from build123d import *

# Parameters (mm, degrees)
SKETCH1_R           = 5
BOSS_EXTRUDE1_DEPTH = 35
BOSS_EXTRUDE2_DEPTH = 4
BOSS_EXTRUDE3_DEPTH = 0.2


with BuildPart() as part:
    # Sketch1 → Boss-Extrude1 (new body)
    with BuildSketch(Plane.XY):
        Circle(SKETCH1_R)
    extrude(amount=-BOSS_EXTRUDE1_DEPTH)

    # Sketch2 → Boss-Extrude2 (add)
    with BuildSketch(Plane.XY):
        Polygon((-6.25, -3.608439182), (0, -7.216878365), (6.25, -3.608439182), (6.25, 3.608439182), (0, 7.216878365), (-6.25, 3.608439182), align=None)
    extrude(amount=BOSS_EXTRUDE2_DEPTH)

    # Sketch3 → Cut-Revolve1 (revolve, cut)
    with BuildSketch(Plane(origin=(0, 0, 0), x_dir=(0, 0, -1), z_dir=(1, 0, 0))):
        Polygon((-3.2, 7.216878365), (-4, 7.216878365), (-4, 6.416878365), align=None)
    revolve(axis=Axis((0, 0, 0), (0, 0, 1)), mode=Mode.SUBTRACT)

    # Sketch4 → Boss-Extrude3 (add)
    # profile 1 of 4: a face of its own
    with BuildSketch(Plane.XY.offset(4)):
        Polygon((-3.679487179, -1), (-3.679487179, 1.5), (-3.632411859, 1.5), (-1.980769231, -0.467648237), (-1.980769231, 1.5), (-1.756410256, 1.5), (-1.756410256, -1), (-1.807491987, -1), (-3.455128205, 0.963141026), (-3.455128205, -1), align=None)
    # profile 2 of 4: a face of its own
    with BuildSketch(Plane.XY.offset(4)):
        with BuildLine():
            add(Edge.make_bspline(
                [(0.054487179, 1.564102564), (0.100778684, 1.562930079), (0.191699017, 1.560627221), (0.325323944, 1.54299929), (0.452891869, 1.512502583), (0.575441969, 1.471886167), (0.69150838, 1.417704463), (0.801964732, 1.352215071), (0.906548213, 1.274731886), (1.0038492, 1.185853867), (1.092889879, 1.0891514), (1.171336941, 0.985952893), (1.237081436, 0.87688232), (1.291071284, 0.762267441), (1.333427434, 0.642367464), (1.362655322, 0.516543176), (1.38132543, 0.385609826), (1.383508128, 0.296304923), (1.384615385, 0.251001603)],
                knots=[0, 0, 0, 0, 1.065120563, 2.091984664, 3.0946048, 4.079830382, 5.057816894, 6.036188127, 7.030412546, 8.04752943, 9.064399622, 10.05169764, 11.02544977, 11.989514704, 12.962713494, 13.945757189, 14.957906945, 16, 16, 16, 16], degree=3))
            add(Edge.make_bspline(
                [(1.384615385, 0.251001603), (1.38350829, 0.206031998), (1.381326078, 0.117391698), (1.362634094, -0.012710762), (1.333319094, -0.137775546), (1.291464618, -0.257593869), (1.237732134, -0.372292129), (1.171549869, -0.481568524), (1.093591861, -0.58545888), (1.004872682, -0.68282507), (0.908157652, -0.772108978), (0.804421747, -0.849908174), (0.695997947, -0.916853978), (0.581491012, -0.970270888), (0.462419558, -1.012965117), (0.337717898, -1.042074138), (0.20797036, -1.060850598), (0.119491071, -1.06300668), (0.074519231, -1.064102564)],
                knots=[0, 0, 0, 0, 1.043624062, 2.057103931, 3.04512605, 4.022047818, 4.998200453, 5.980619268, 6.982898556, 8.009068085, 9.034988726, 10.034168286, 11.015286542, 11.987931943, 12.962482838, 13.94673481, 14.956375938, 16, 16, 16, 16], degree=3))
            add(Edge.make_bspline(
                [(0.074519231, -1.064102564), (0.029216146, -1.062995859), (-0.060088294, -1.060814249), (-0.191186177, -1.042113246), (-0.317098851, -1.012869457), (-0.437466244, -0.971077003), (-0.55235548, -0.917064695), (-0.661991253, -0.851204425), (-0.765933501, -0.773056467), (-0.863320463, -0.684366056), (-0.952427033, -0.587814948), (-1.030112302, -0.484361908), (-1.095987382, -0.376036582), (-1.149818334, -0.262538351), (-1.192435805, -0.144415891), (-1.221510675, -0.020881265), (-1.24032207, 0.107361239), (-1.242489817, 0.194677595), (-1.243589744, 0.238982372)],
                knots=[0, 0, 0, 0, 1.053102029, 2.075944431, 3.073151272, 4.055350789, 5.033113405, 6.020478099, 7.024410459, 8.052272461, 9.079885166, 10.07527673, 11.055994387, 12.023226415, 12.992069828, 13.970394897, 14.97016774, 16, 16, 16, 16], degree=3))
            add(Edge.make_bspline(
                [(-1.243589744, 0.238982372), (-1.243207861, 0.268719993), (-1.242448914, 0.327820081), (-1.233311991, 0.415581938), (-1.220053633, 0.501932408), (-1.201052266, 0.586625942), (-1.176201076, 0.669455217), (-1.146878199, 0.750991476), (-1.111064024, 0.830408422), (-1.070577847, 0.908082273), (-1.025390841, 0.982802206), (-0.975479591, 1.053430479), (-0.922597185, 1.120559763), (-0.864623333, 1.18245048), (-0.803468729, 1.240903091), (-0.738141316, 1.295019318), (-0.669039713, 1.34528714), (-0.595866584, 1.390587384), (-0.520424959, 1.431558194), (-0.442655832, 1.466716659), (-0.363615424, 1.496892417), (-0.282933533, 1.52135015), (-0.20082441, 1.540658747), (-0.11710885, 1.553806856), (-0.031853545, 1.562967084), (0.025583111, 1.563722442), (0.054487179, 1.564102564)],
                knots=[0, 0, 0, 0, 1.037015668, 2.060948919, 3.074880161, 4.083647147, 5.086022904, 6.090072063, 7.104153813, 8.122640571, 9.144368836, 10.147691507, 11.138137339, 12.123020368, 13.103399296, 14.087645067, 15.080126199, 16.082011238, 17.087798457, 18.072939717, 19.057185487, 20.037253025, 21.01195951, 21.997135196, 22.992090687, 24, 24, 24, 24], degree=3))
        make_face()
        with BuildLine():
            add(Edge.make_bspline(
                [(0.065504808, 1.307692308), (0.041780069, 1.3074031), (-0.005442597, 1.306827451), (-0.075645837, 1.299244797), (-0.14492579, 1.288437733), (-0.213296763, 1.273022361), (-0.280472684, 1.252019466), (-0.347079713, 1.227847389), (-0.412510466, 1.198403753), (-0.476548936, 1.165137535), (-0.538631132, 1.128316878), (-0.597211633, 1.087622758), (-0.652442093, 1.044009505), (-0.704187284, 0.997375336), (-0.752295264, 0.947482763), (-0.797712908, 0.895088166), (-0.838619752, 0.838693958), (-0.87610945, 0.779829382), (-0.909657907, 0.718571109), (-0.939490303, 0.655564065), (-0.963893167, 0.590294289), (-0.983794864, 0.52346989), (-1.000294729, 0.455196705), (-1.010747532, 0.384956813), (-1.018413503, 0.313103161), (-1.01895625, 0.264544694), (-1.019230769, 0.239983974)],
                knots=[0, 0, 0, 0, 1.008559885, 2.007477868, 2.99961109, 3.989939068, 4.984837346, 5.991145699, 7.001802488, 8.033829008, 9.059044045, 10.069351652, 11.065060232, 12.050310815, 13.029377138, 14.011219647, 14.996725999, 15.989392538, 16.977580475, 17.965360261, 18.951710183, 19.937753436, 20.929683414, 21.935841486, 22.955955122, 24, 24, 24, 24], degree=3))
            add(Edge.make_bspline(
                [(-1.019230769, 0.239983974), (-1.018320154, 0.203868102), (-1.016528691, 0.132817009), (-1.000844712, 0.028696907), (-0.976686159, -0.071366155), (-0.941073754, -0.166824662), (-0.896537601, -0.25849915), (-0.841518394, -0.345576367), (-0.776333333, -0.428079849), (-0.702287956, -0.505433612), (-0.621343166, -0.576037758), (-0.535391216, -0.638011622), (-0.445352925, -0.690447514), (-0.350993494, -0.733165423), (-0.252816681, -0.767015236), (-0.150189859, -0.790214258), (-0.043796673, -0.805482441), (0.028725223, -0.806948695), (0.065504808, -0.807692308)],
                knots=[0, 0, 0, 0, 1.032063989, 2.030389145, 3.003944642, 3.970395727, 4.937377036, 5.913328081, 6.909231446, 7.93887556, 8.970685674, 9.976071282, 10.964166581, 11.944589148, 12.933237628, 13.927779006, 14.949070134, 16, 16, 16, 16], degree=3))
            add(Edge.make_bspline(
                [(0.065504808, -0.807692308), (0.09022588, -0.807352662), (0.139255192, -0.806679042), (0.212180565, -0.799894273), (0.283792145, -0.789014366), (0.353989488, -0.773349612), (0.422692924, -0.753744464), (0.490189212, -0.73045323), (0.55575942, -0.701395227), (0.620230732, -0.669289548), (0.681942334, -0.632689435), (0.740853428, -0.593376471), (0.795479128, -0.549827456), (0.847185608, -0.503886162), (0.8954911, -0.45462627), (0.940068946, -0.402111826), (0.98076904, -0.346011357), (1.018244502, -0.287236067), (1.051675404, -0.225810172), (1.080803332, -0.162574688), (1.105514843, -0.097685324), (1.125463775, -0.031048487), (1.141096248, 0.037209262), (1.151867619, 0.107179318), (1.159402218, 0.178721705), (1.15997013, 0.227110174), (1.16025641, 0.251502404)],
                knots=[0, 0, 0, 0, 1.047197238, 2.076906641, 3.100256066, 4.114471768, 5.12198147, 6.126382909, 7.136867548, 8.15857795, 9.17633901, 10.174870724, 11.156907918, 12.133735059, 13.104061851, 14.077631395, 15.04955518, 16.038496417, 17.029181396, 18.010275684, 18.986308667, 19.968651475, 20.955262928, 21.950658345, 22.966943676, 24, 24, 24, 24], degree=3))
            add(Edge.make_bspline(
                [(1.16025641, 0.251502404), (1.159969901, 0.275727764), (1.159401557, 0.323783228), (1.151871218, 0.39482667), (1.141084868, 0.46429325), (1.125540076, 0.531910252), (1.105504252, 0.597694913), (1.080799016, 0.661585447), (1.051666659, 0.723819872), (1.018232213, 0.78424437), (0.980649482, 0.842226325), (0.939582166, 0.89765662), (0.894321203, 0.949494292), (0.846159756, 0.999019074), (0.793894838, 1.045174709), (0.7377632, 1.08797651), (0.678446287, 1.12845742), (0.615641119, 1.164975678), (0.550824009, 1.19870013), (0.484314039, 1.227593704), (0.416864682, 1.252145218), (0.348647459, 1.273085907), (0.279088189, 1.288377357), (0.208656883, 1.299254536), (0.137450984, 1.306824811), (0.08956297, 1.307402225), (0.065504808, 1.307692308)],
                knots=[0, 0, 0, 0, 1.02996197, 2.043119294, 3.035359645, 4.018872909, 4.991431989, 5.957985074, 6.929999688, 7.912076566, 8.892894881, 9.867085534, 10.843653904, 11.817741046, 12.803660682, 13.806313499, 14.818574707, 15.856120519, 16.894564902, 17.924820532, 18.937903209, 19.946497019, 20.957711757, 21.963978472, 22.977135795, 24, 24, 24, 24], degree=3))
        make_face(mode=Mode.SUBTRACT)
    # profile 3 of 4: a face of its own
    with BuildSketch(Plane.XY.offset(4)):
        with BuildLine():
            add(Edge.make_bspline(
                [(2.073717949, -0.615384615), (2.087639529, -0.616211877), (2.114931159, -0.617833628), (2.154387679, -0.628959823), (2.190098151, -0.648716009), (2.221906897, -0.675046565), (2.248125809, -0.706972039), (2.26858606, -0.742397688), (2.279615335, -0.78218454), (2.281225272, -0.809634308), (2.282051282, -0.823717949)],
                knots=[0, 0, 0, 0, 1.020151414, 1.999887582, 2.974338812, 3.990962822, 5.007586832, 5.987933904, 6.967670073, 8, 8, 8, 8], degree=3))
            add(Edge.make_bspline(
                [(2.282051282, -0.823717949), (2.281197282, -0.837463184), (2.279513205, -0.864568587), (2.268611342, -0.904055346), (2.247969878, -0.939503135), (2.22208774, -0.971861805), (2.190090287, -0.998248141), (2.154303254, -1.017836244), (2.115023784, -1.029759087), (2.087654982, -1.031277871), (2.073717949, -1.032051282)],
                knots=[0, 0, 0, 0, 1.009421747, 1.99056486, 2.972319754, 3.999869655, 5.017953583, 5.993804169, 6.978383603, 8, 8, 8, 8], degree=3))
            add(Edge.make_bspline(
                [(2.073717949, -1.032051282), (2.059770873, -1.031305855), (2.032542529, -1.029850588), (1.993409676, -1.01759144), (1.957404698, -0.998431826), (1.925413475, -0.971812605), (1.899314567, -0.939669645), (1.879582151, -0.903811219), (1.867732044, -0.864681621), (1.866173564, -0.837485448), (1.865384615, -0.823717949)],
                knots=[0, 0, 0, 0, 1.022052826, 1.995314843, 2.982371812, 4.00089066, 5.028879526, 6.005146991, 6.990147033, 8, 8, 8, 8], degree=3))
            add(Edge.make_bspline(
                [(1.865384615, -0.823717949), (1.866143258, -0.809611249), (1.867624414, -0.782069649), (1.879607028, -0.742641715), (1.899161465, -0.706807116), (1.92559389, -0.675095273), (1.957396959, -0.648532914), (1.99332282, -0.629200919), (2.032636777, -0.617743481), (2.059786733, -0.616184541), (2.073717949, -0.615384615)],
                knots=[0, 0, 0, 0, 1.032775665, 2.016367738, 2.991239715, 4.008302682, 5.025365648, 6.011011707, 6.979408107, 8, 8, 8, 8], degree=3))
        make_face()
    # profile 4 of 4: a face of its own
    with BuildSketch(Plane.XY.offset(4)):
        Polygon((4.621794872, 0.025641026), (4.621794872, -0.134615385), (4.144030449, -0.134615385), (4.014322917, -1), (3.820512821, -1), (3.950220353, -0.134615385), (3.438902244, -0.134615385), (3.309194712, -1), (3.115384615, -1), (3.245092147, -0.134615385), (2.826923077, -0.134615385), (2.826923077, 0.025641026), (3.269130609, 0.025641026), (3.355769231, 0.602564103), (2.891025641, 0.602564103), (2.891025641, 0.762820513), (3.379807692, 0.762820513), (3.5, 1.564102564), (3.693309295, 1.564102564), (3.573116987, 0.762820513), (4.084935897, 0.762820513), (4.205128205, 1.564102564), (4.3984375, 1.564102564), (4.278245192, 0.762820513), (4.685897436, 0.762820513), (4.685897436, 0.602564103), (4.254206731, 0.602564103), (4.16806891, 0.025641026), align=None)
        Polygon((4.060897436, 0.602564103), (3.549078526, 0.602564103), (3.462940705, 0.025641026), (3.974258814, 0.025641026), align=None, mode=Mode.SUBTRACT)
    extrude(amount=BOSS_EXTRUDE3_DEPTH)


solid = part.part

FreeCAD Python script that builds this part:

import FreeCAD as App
import Part
import Sketcher
from FreeCAD import Vector
Q = App.Units.Quantity


def add_polygon(sketch, points):
    """Adds a closed chain of lines whose ends are joined by coincident constraints."""
    first, n = sketch.GeometryCount, len(points)
    for a, b in zip(points, points[1:] + points[:1]):
        sketch.addGeometry(Part.LineSegment(App.Vector(*a, 0), App.Vector(*b, 0)), False)
    for i in range(n):
        sketch.addConstraint(Sketcher.Constraint("Coincident", first + i, 2, first + (i + 1) % n, 1))

doc = App.newDocument("Part")
params = doc.addObject("Spreadsheet::Sheet", "Params")
for row, (alias, value) in enumerate([
    ("sketch1_diameter", "10 mm"),
    ("pad1_length", "35 mm"),
    ("pad2_length", "4 mm"),
    ("sketch3_width", "0.8 mm"),
    ("groove_angle", "360 deg"),
    ("sketch4_height", "2.5 mm"),
    ("pad3_length", "0.2 mm"),
], start=1):
    params.set(f"A{row}", alias)
    params.set(f"B{row}", "=" + value)
    params.setAlias(f"B{row}", alias)

body = doc.addObject("PartDesign::Body", "Body")

# Sketch on XY plane
sketch1 = body.newObject("Sketcher::SketchObject", "Sketch")
sketch1.AttachmentSupport = (doc.getObject("XY_Plane"), [""])
sketch1.MapMode = "FlatFace"
sketch1.addGeometry(Part.Circle(Vector(0, 0, 0), Vector(0, 0, 1), 5), False)
sketch1.addConstraint(Sketcher.Constraint("Coincident", 0, 3, -1, 1))
sketch1.addConstraint(Sketcher.Constraint("Diameter", 0, 10.0))
sketch1.setExpression("Constraints[1]", "Params.sketch1_diameter")
pad1 = body.newObject("PartDesign::Pad", "Pad")
pad1.Profile = sketch1
pad1.setExpression("Length", "Params.pad1_length")
pad1.Reversed = True

# Sketch on XY plane
sketch2 = body.newObject("Sketcher::SketchObject", "Sketch001")
sketch2.AttachmentSupport = (doc.getObject("XY_Plane"), [""])
sketch2.MapMode = "FlatFace"
add_polygon(sketch2, [(-6.25, -3.608439), (0, -7.216878), (6.25, -3.608439), (6.25, 3.608439), (0, 7.216878), (-6.25, 3.608439)])  # lines 0-5
sketch2.addConstraint(Sketcher.Constraint("Vertical", 2))
sketch2.addConstraint(Sketcher.Constraint("Vertical", 5))
sketch2.addConstraint(Sketcher.Constraint("Symmetric", 0, 2, 3, 2, -1, 1))
sketch2.addConstraint(Sketcher.Constraint("Symmetric", 1, 2, 4, 2, -1, 1))
sketch2.addConstraint(Sketcher.Constraint("PointOnObject", 0, 2, -2))
sketch2.addConstraint(Sketcher.Constraint("Parallel", 0, 3))
sketch2.addConstraint(Sketcher.Constraint("Horizontal", 2, 2, 4, 2))
sketch2.addConstraint(Sketcher.Constraint("Angle", 0, Q("-30 deg")))
sketch2.addConstraint(Sketcher.Constraint("DistanceX", 4, 2, 2, 2, 12.5))
sketch2.addConstraint(Sketcher.Constraint("DistanceY", 2, 1, 2, 2, 7.216878))
pad2 = body.newObject("PartDesign::Pad", "Pad001")
pad2.Profile = sketch2
pad2.setExpression("Length", "Params.pad2_length")

# Sketch on YZ plane
sketch3 = body.newObject("Sketcher::SketchObject", "Sketch002")
sketch3.AttachmentSupport = (doc.getObject("YZ_Plane"), [""])
sketch3.MapMode = "FlatFace"
add_polygon(sketch3, [(7.216878, 3.2), (7.216878, 4), (6.416878, 4)])  # lines 0-2
sketch3.addConstraint(Sketcher.Constraint("Vertical", 0))
sketch3.addConstraint(Sketcher.Constraint("Horizontal", 1))
sketch3.addConstraint(Sketcher.Constraint("Equal", 1, 0))
sketch3.addConstraint(Sketcher.Constraint("DistanceX", 1, 2, 1, 1, 0.8))
sketch3.addConstraint(Sketcher.Constraint("DistanceY", -1, 1, 0, 2, 4.0))
sketch3.addConstraint(Sketcher.Constraint("DistanceX", -1, 1, 0, 2, 7.216878))
sketch3.setExpression("Constraints[6]", "Params.sketch3_width")
groove = body.newObject("PartDesign::Groove", "Groove")
groove.Profile = sketch3
groove.ReferenceAxis = (sketch3, ["V_Axis"])
groove.setExpression("Angle", "Params.groove_angle")

# Sketch on XY plane
sketch4 = body.newObject("Sketcher::SketchObject", "Sketch003")
sketch4.AttachmentSupport = (doc.getObject("XY_Plane"), [""])
sketch4.MapMode = "FlatFace"
sketch4.AttachmentOffset = App.Placement(Vector(0, 0, 4), App.Rotation())
add_polygon(sketch4, [(-3.679487, 1.5), (-3.679487, -1), (-3.455128, -1), (-3.455128, 0.963141), (-1.807492, -1), (-1.75641, -1), (-1.75641, 1.5), (-1.980769, 1.5), (-1.980769, -0.467648), (-3.632412, 1.5)])  # lines 0-9
sketch4.addGeometry(Part.BSplineCurve([Vector(0.054487, 1.564103, 0), Vector(0.100779, 1.56293, 0), Vector(0.191699, 1.560627, 0), Vector(0.325324, 1.542999, 0), Vector(0.452892, 1.512503, 0), Vector(0.575442, 1.471886, 0), Vector(0.691508, 1.417704, 0), Vector(0.801965, 1.352215, 0), Vector(0.906548, 1.274732, 0), Vector(1.003849, 1.185854, 0), Vector(1.09289, 1.089151, 0), Vector(1.171337, 0.985953, 0), Vector(1.237081, 0.876882, 0), Vector(1.291071, 0.762267, 0), Vector(1.333427, 0.642367, 0), Vector(1.362655, 0.516543, 0), Vector(1.381325, 0.38561, 0), Vector(1.383508, 0.296305, 0), Vector(1.384615, 0.251002, 0)], [4, 1, 1, 1, 1, 1, 1, 1, 1, 1, 1, 1, 1, 1, 1, 1, 4], [0, 1.065120563, 2.091984664, 3.0946048, 4.079830382, 5.057816894, 6.036188127, 7.030412546, 8.04752943, 9.064399622, 10.05169764, 11.02544977, 11.989514704, 12.962713494, 13.945757189, 14.957906945, 16], False, 3, [1, 1, 1, 1, 1, 1, 1, 1, 1, 1, 1, 1, 1, 1, 1, 1, 1, 1, 1], False), False)  # 10
sketch4.addGeometry(Part.BSplineCurve([Vector(-1.24359, 0.238982, 0), Vector(-1.243208, 0.26872, 0), Vector(-1.242449, 0.32782, 0), Vector(-1.233312, 0.415582, 0), Vector(-1.220054, 0.501932, 0), Vector(-1.201052, 0.586626, 0), Vector(-1.176201, 0.669455, 0), Vector(-1.146878, 0.750991, 0), Vector(-1.111064, 0.830408, 0), Vector(-1.070578, 0.908082, 0), Vector(-1.025391, 0.982802, 0), Vector(-0.97548, 1.05343, 0), Vector(-0.922597, 1.12056, 0), Vector(-0.864623, 1.18245, 0), Vector(-0.803469, 1.240903, 0), Vector(-0.738141, 1.295019, 0), Vector(-0.66904, 1.345287, 0), Vector(-0.595867, 1.390587, 0), Vector(-0.520425, 1.431558, 0), Vector(-0.442656, 1.466717, 0), Vector(-0.363615, 1.496892, 0), Vector(-0.282934, 1.52135, 0), Vector(-0.200824, 1.540659, 0), Vector(-0.117109, 1.553807, 0), Vector(-0.031854, 1.562967, 0), Vector(0.025583, 1.563722, 0), Vector(0.054487, 1.564103, 0)], [4, 1, 1, 1, 1, 1, 1, 1, 1, 1, 1, 1, 1, 1, 1, 1, 1, 1, 1, 1, 1, 1, 1, 1, 4], [0, 1.037015668, 2.060948919, 3.074880161, 4.083647147, 5.086022904, 6.090072063, 7.104153813, 8.122640571, 9.144368836, 10.147691507, 11.138137339, 12.123020368, 13.103399296, 14.087645067, 15.080126199, 16.082011238, 17.087798457, 18.072939717, 19.057185487, 20.037253025, 21.01195951, 21.997135196, 22.992090687, 24], False, 3, [1, 1, 1, 1, 1, 1, 1, 1, 1, 1, 1, 1, 1, 1, 1, 1, 1, 1, 1, 1, 1, 1, 1, 1, 1, 1, 1], False), False)  # 11
sketch4.addGeometry(Part.BSplineCurve([Vector(0.074519, -1.064103, 0), Vector(0.029216, -1.062996, 0), Vector(-0.060088, -1.060814, 0), Vector(-0.191186, -1.042113, 0), Vector(-0.317099, -1.012869, 0), Vector(-0.437466, -0.971077, 0), Vector(-0.552355, -0.917065, 0), Vector(-0.661991, -0.851204, 0), Vector(-0.765934, -0.773056, 0), Vector(-0.86332, -0.684366, 0), Vector(-0.952427, -0.587815, 0), Vector(-1.030112, -0.484362, 0), Vector(-1.095987, -0.376037, 0), Vector(-1.149818, -0.262538, 0), Vector(-1.192436, -0.144416, 0), Vector(-1.221511, -0.020881, 0), Vector(-1.240322, 0.107361, 0), Vector(-1.24249, 0.194678, 0), Vector(-1.24359, 0.238982, 0)], [4, 1, 1, 1, 1, 1, 1, 1, 1, 1, 1, 1, 1, 1, 1, 1, 4], [0, 1.053102029, 2.075944431, 3.073151272, 4.055350789, 5.033113405, 6.020478099, 7.024410459, 8.052272461, 9.079885166, 10.07527673, 11.055994387, 12.023226415, 12.992069828, 13.970394897, 14.97016774, 16], False, 3, [1, 1, 1, 1, 1, 1, 1, 1, 1, 1, 1, 1, 1, 1, 1, 1, 1, 1, 1], False), False)  # 12
sketch4.addGeometry(Part.BSplineCurve([Vector(1.384615, 0.251002, 0), Vector(1.383508, 0.206032, 0), Vector(1.381326, 0.117392, 0), Vector(1.362634, -0.012711, 0), Vector(1.333319, -0.137776, 0), Vector(1.291465, -0.257594, 0), Vector(1.237732, -0.372292, 0), Vector(1.17155, -0.481569, 0), Vector(1.093592, -0.585459, 0), Vector(1.004873, -0.682825, 0), Vector(0.908158, -0.772109, 0), Vector(0.804422, -0.849908, 0), Vector(0.695998, -0.916854, 0), Vector(0.581491, -0.970271, 0), Vector(0.46242, -1.012965, 0), Vector(0.337718, -1.042074, 0), Vector(0.20797, -1.060851, 0), Vector(0.119491, -1.063007, 0), Vector(0.074519, -1.064103, 0)], [4, 1, 1, 1, 1, 1, 1, 1, 1, 1, 1, 1, 1, 1, 1, 1, 4], [0, 1.043624062, 2.057103931, 3.04512605, 4.022047818, 4.998200453, 5.980619268, 6.982898556, 8.009068085, 9.034988726, 10.034168286, 11.015286542, 11.987931943, 12.962482838, 13.94673481, 14.956375938, 16], False, 3, [1, 1, 1, 1, 1, 1, 1, 1, 1, 1, 1, 1, 1, 1, 1, 1, 1, 1, 1], False), False)  # 13
sketch4.addGeometry(Part.BSplineCurve([Vector(1.160256, 0.251502, 0), Vector(1.15997, 0.275728, 0), Vector(1.159402, 0.323783, 0), Vector(1.151871, 0.394827, 0), Vector(1.141085, 0.464293, 0), Vector(1.12554, 0.53191, 0), Vector(1.105504, 0.597695, 0), Vector(1.080799, 0.661585, 0), Vector(1.051667, 0.72382, 0), Vector(1.018232, 0.784244, 0), Vector(0.980649, 0.842226, 0), Vector(0.939582, 0.897657, 0), Vector(0.894321, 0.949494, 0), Vector(0.84616, 0.999019, 0), Vector(0.793895, 1.045175, 0), Vector(0.737763, 1.087977, 0), Vector(0.678446, 1.128457, 0), Vector(0.615641, 1.164976, 0), Vector(0.550824, 1.1987, 0), Vector(0.484314, 1.227594, 0), Vector(0.416865, 1.252145, 0), Vector(0.348647, 1.273086, 0), Vector(0.279088, 1.288377, 0), Vector(0.208657, 1.299255, 0), Vector(0.137451, 1.306825, 0), Vector(0.089563, 1.307402, 0), Vector(0.065505, 1.307692, 0)], [4, 1, 1, 1, 1, 1, 1, 1, 1, 1, 1, 1, 1, 1, 1, 1, 1, 1, 1, 1, 1, 1, 1, 1, 4], [0, 1.02996197, 2.043119294, 3.035359645, 4.018872909, 4.991431989, 5.957985074, 6.929999688, 7.912076566, 8.892894881, 9.867085534, 10.843653904, 11.817741046, 12.803660682, 13.806313499, 14.818574707, 15.856120519, 16.894564902, 17.924820532, 18.937903209, 19.946497019, 20.957711757, 21.963978472, 22.977135795, 24], False, 3, [1, 1, 1, 1, 1, 1, 1, 1, 1, 1, 1, 1, 1, 1, 1, 1, 1, 1, 1, 1, 1, 1, 1, 1, 1, 1, 1], False), False)  # 14
sketch4.addGeometry(Part.BSplineCurve([Vector(0.065505, -0.807692, 0), Vector(0.090226, -0.807353, 0), Vector(0.139255, -0.806679, 0), Vector(0.212181, -0.799894, 0), Vector(0.283792, -0.789014, 0), Vector(0.353989, -0.77335, 0), Vector(0.422693, -0.753744, 0), Vector(0.490189, -0.730453, 0), Vector(0.555759, -0.701395, 0), Vector(0.620231, -0.66929, 0), Vector(0.681942, -0.632689, 0), Vector(0.740853, -0.593376, 0), Vector(0.795479, -0.549827, 0), Vector(0.847186, -0.503886, 0), Vector(0.895491, -0.454626, 0), Vector(0.940069, -0.402112, 0), Vector(0.980769, -0.346011, 0), Vector(1.018245, -0.287236, 0), Vector(1.051675, -0.22581, 0), Vector(1.080803, -0.162575, 0), Vector(1.105515, -0.097685, 0), Vector(1.125464, -0.031048, 0), Vector(1.141096, 0.037209, 0), Vector(1.151868, 0.107179, 0), Vector(1.159402, 0.178722, 0), Vector(1.15997, 0.22711, 0), Vector(1.160256, 0.251502, 0)], [4, 1, 1, 1, 1, 1, 1, 1, 1, 1, 1, 1, 1, 1, 1, 1, 1, 1, 1, 1, 1, 1, 1, 1, 4], [0, 1.047197238, 2.076906641, 3.100256066, 4.114471768, 5.12198147, 6.126382909, 7.136867548, 8.15857795, 9.17633901, 10.174870724, 11.156907918, 12.133735059, 13.104061851, 14.077631395, 15.04955518, 16.038496417, 17.029181396, 18.010275684, 18.986308667, 19.968651475, 20.955262928, 21.950658345, 22.966943676, 24], False, 3, [1, 1, 1, 1, 1, 1, 1, 1, 1, 1, 1, 1, 1, 1, 1, 1, 1, 1, 1, 1, 1, 1, 1, 1, 1, 1, 1], False), False)  # 15
sketch4.addGeometry(Part.BSplineCurve([Vector(-1.019231, 0.239984, 0), Vector(-1.01832, 0.203868, 0), Vector(-1.016529, 0.132817, 0), Vector(-1.000845, 0.028697, 0), Vector(-0.976686, -0.071366, 0), Vector(-0.941074, -0.166825, 0), Vector(-0.896538, -0.258499, 0), Vector(-0.841518, -0.345576, 0), Vector(-0.776333, -0.42808, 0), Vector(-0.702288, -0.505434, 0), Vector(-0.621343, -0.576038, 0), Vector(-0.535391, -0.638012, 0), Vector(-0.445353, -0.690448, 0), Vector(-0.350993, -0.733165, 0), Vector(-0.252817, -0.767015, 0), Vector(-0.15019, -0.790214, 0), Vector(-0.043797, -0.805482, 0), Vector(0.028725, -0.806949, 0), Vector(0.065505, -0.807692, 0)], [4, 1, 1, 1, 1, 1, 1, 1, 1, 1, 1, 1, 1, 1, 1, 1, 4], [0, 1.032063989, 2.030389145, 3.003944642, 3.970395727, 4.937377036, 5.913328081, 6.909231446, 7.93887556, 8.970685674, 9.976071282, 10.964166581, 11.944589148, 12.933237628, 13.927779006, 14.949070134, 16], False, 3, [1, 1, 1, 1, 1, 1, 1, 1, 1, 1, 1, 1, 1, 1, 1, 1, 1, 1, 1], False), False)  # 16
sketch4.addGeometry(Part.BSplineCurve([Vector(0.065505, 1.307692, 0), Vector(0.04178, 1.307403, 0), Vector(-0.005443, 1.306827, 0), Vector(-0.075646, 1.299245, 0), Vector(-0.144926, 1.288438, 0), Vector(-0.213297, 1.273022, 0), Vector(-0.280473, 1.252019, 0), Vector(-0.34708, 1.227847, 0), Vector(-0.41251, 1.198404, 0), Vector(-0.476549, 1.165138, 0), Vector(-0.538631, 1.128317, 0), Vector(-0.597212, 1.087623, 0), Vector(-0.652442, 1.04401, 0), Vector(-0.704187, 0.997375, 0), Vector(-0.752295, 0.947483, 0), Vector(-0.797713, 0.895088, 0), Vector(-0.83862, 0.838694, 0), Vector(-0.876109, 0.779829, 0), Vector(-0.909658, 0.718571, 0), Vector(-0.93949, 0.655564, 0), Vector(-0.963893, 0.590294, 0), Vector(-0.983795, 0.52347, 0), Vector(-1.000295, 0.455197, 0), Vector(-1.010748, 0.384957, 0), Vector(-1.018414, 0.313103, 0), Vector(-1.018956, 0.264545, 0), Vector(-1.019231, 0.239984, 0)], [4, 1, 1, 1, 1, 1, 1, 1, 1, 1, 1, 1, 1, 1, 1, 1, 1, 1, 1, 1, 1, 1, 1, 1, 4], [0, 1.008559885, 2.007477868, 2.99961109, 3.989939068, 4.984837346, 5.991145699, 7.001802488, 8.033829008, 9.059044045, 10.069351652, 11.065060232, 12.050310815, 13.029377138, 14.011219647, 14.996725999, 15.989392538, 16.977580475, 17.965360261, 18.951710183, 19.937753436, 20.929683414, 21.935841486, 22.955955122, 24], False, 3, [1, 1, 1, 1, 1, 1, 1, 1, 1, 1, 1, 1, 1, 1, 1, 1, 1, 1, 1, 1, 1, 1, 1, 1, 1, 1, 1], False), False)  # 17
sketch4.addGeometry(Part.BSplineCurve([Vector(2.073718, -0.615385, 0), Vector(2.08764, -0.616212, 0), Vector(2.114931, -0.617834, 0), Vector(2.154388, -0.62896, 0), Vector(2.190098, -0.648716, 0), Vector(2.221907, -0.675047, 0), Vector(2.248126, -0.706972, 0), Vector(2.268586, -0.742398, 0), Vector(2.279615, -0.782185, 0), Vector(2.281225, -0.809634, 0), Vector(2.282051, -0.823718, 0)], [4, 1, 1, 1, 1, 1, 1, 1, 4], [0, 1.020151414, 1.999887582, 2.974338812, 3.990962822, 5.007586832, 5.987933904, 6.967670073, 8], False, 3, [1, 1, 1, 1, 1, 1, 1, 1, 1, 1, 1], False), False)  # 18
sketch4.addGeometry(Part.BSplineCurve([Vector(1.865385, -0.823718, 0), Vector(1.866143, -0.809611, 0), Vector(1.867624, -0.78207, 0), Vector(1.879607, -0.742642, 0), Vector(1.899161, -0.706807, 0), Vector(1.925594, -0.675095, 0), Vector(1.957397, -0.648533, 0), Vector(1.993323, -0.629201, 0), Vector(2.032637, -0.617743, 0), Vector(2.059787, -0.616185, 0), Vector(2.073718, -0.615385, 0)], [4, 1, 1, 1, 1, 1, 1, 1, 4], [0, 1.032775665, 2.016367738, 2.991239715, 4.008302682, 5.025365648, 6.011011707, 6.979408107, 8], False, 3, [1, 1, 1, 1, 1, 1, 1, 1, 1, 1, 1], False), False)  # 19
sketch4.addGeometry(Part.BSplineCurve([Vector(2.073718, -1.032051, 0), Vector(2.059771, -1.031306, 0), Vector(2.032543, -1.029851, 0), Vector(1.99341, -1.017591, 0), Vector(1.957405, -0.998432, 0), Vector(1.925413, -0.971813, 0), Vector(1.899315, -0.93967, 0), Vector(1.879582, -0.903811, 0), Vector(1.867732, -0.864682, 0), Vector(1.866174, -0.837485, 0), Vector(1.865385, -0.823718, 0)], [4, 1, 1, 1, 1, 1, 1, 1, 4], [0, 1.022052826, 1.995314843, 2.982371812, 4.00089066, 5.028879526, 6.005146991, 6.990147033, 8], False, 3, [1, 1, 1, 1, 1, 1, 1, 1, 1, 1, 1], False), False)  # 20
sketch4.addGeometry(Part.BSplineCurve([Vector(2.282051, -0.823718, 0), Vector(2.281197, -0.837463, 0), Vector(2.279513, -0.864569, 0), Vector(2.268611, -0.904055, 0), Vector(2.24797, -0.939503, 0), Vector(2.222088, -0.971862, 0), Vector(2.19009, -0.998248, 0), Vector(2.154303, -1.017836, 0), Vector(2.115024, -1.029759, 0), Vector(2.087655, -1.031278, 0), Vector(2.073718, -1.032051, 0)], [4, 1, 1, 1, 1, 1, 1, 1, 4], [0, 1.009421747, 1.99056486, 2.972319754, 3.999869655, 5.017953583, 5.993804169, 6.978383603, 8], False, 3, [1, 1, 1, 1, 1, 1, 1, 1, 1, 1, 1], False), False)  # 21
add_polygon(sketch4, [(4.621795, -0.134615), (4.621795, 0.025641), (4.168069, 0.025641), (4.254207, 0.602564), (4.685897, 0.602564), (4.685897, 0.762821), (4.278245, 0.762821), (4.398438, 1.564103), (4.205128, 1.564103), (4.084936, 0.762821), (3.573117, 0.762821), (3.693309, 1.564103), (3.5, 1.564103), (3.379808, 0.762821), (2.891026, 0.762821), (2.891026, 0.602564), (3.355769, 0.602564), (3.269131, 0.025641), (2.826923, 0.025641), (2.826923, -0.134615), (3.245092, -0.134615), (3.115385, -1), (3.309195, -1), (3.438902, -0.134615), (3.95022, -0.134615), (3.820513, -1), (4.014323, -1), (4.14403, -0.134615)])  # lines 22-49
add_polygon(sketch4, [(4.060897, 0.602564), (3.974259, 0.025641), (3.462941, 0.025641), (3.549079, 0.602564)])  # lines 50-53
sketch4.addConstraint(Sketcher.Constraint("Block", 10))
sketch4.addConstraint(Sketcher.Constraint("Block", 11))
sketch4.addConstraint(Sketcher.Constraint("Block", 12))
sketch4.addConstraint(Sketcher.Constraint("Block", 13))
sketch4.addConstraint(Sketcher.Constraint("Block", 14))
sketch4.addConstraint(Sketcher.Constraint("Block", 15))
sketch4.addConstraint(Sketcher.Constraint("Block", 16))
sketch4.addConstraint(Sketcher.Constraint("Block", 17))
sketch4.addConstraint(Sketcher.Constraint("Block", 18))
sketch4.addConstraint(Sketcher.Constraint("Block", 19))
sketch4.addConstraint(Sketcher.Constraint("Block", 20))
sketch4.addConstraint(Sketcher.Constraint("Block", 21))
sketch4.addConstraint(Sketcher.Constraint("Vertical", 0))
sketch4.addConstraint(Sketcher.Constraint("Horizontal", 1))
sketch4.addConstraint(Sketcher.Constraint("Vertical", 2))
sketch4.addConstraint(Sketcher.Constraint("Horizontal", 4))
sketch4.addConstraint(Sketcher.Constraint("Vertical", 5))
sketch4.addConstraint(Sketcher.Constraint("Horizontal", 6))
sketch4.addConstraint(Sketcher.Constraint("Vertical", 7))
sketch4.addConstraint(Sketcher.Constraint("Horizontal", 9))
sketch4.addConstraint(Sketcher.Constraint("Vertical", 22))
sketch4.addConstraint(Sketcher.Constraint("Horizontal", 23))
sketch4.addConstraint(Sketcher.Constraint("Horizontal", 25))
sketch4.addConstraint(Sketcher.Constraint("Vertical", 26))
sketch4.addConstraint(Sketcher.Constraint("Horizontal", 27))
sketch4.addConstraint(Sketcher.Constraint("Horizontal", 29))
sketch4.addConstraint(Sketcher.Constraint("Horizontal", 31))
sketch4.addConstraint(Sketcher.Constraint("Horizontal", 33))
sketch4.addConstraint(Sketcher.Constraint("Horizontal", 35))
sketch4.addConstraint(Sketcher.Constraint("Vertical", 36))
sketch4.addConstraint(Sketcher.Constraint("Horizontal", 37))
sketch4.addConstraint(Sketcher.Constraint("Horizontal", 39))
sketch4.addConstraint(Sketcher.Constraint("Vertical", 40))
sketch4.addConstraint(Sketcher.Constraint("Horizontal", 41))
sketch4.addConstraint(Sketcher.Constraint("Horizontal", 43))
sketch4.addConstraint(Sketcher.Constraint("Horizontal", 45))
sketch4.addConstraint(Sketcher.Constraint("Horizontal", 47))
sketch4.addConstraint(Sketcher.Constraint("Horizontal", 49))
sketch4.addConstraint(Sketcher.Constraint("Horizontal", 51))
sketch4.addConstraint(Sketcher.Constraint("Horizontal", 53))
sketch4.addConstraint(Sketcher.Constraint("Parallel", 28, 30))
sketch4.addConstraint(Sketcher.Constraint("Parallel", 30, 32))
sketch4.addConstraint(Sketcher.Constraint("Parallel", 32, 34))
sketch4.addConstraint(Sketcher.Constraint("Parallel", 42, 44))
sketch4.addConstraint(Sketcher.Constraint("Parallel", 44, 46))
sketch4.addConstraint(Sketcher.Constraint("Parallel", 46, 48))
sketch4.addConstraint(Sketcher.Constraint("Parallel", 38, 50))
sketch4.addConstraint(Sketcher.Constraint("Parallel", 24, 52))
sketch4.addConstraint(Sketcher.Constraint("Horizontal", 1, 2, 3, 2))
sketch4.addConstraint(Sketcher.Constraint("Horizontal", 6, 2, 8, 2))
sketch4.addConstraint(Sketcher.Constraint("Horizontal", 27, 2, 30, 2))
sketch4.addConstraint(Sketcher.Constraint("Horizontal", 29, 2, 32, 2))
sketch4.addConstraint(Sketcher.Constraint("Horizontal", 31, 2, 34, 2))
sketch4.addConstraint(Sketcher.Constraint("Horizontal", 25, 2, 36, 2))
sketch4.addConstraint(Sketcher.Constraint("Horizontal", 23, 2, 38, 2))
sketch4.addConstraint(Sketcher.Constraint("Horizontal", 4, 2, 42, 2))
sketch4.addConstraint(Sketcher.Constraint("Horizontal", 41, 2, 44, 2))
sketch4.addConstraint(Sketcher.Constraint("Horizontal", 43, 2, 46, 2))
sketch4.addConstraint(Sketcher.Constraint("Horizontal", 45, 2, 48, 2))
sketch4.addConstraint(Sketcher.Constraint("Horizontal", 39, 2, 50, 2))
sketch4.addConstraint(Sketcher.Constraint("Horizontal", 37, 2, 52, 2))
sketch4.addConstraint(Sketcher.Constraint("Equal", 1, 6))
sketch4.addConstraint(Sketcher.Constraint("Equal", 29, 33))
sketch4.addConstraint(Sketcher.Constraint("Equal", 43, 47))
sketch4.addConstraint(Sketcher.Constraint("Equal", 45, 51))
sketch4.addConstraint(Sketcher.Constraint("Equal", 31, 53))
sketch4.addConstraint(Sketcher.Constraint("Equal", 22, 26))
sketch4.addConstraint(Sketcher.Constraint("DistanceY", 0, 2, 0, 1, 2.5))
sketch4.addConstraint(Sketcher.Constraint("DistanceY", 0, 2, -1, 1, 1.0))
sketch4.addConstraint(Sketcher.Constraint("DistanceX", -1, 1, 33, 2, 3.5))
sketch4.addConstraint(Sketcher.Constraint("DistanceX", 8, 2, 5, 2, 1.876002))
sketch4.addConstraint(Sketcher.Constraint("DistanceX", 1, 1, 1, 2, 0.224359))
sketch4.addConstraint(Sketcher.Constraint("DistanceX", 4, 1, 4, 2, 0.051082))
sketch4.addConstraint(Sketcher.Constraint("DistanceX", 25, 1, 25, 2, 0.431691))
sketch4.addConstraint(Sketcher.Constraint("DistanceX", 29, 2, 29, 1, 0.193309))
sketch4.addConstraint(Sketcher.Constraint("DistanceX", 31, 2, 31, 1, 0.511819))
sketch4.addConstraint(Sketcher.Constraint("DistanceX", 41, 1, 41, 2, 0.418169))
sketch4.addConstraint(Sketcher.Constraint("DistanceX", 43, 1, 43, 2, 0.19381))
sketch4.addConstraint(Sketcher.Constraint("DistanceX", 45, 1, 45, 2, 0.511318))
sketch4.addConstraint(Sketcher.Constraint("DistanceY", 2, 1, 2, 2, 1.963141))
sketch4.addConstraint(Sketcher.Constraint("DistanceY", 7, 2, 7, 1, 1.967648))
sketch4.addConstraint(Sketcher.Constraint("DistanceX", 3, 2, 24, 2, 6.061699))
sketch4.addConstraint(Sketcher.Constraint("DistanceX", 34, 2, 32, 2, 0.313502))
sketch4.addConstraint(Sketcher.Constraint("DistanceX", 34, 2, 24, 2, 0.874399))
sketch4.addConstraint(Sketcher.Constraint("Distance", 24, 0.583318))
sketch4.addConstraint(Sketcher.Constraint("Distance", 42, 0.875051))
sketch4.addConstraint(Sketcher.Constraint("DistanceX", 9, 2, 9, 1, 0.047075))
sketch4.addConstraint(Sketcher.Constraint("DistanceX", 23, 2, 23, 1, 0.453726))
sketch4.addConstraint(Sketcher.Constraint("DistanceX", 35, 2, 35, 1, 0.488782))
sketch4.addConstraint(Sketcher.Constraint("DistanceX", 37, 1, 37, 2, 0.464744))
sketch4.addConstraint(Sketcher.Constraint("DistanceX", 39, 2, 39, 1, 0.442208))
sketch4.addConstraint(Sketcher.Constraint("DistanceY", 22, 1, 22, 2, 0.160256))
sketch4.addConstraint(Sketcher.Constraint("DistanceY", -1, 1, 22, 2, 0.025641))
sketch4.addConstraint(Sketcher.Constraint("DistanceX", -1, 1, 23, 2, 4.168069))
sketch4.addConstraint(Sketcher.Constraint("DistanceX", -1, 1, 50, 2, 3.974259))
sketch4.addConstraint(Sketcher.Constraint("DistanceY", 24, 2, 28, 2, 0.961538))
sketch4.setExpression("Constraints[109]", "Params.sketch4_height")
pad3 = body.newObject("PartDesign::Pad", "Pad002")
pad3.Profile = sketch4
pad3.setExpression("Length", "Params.pad3_length")

doc.recompute()
